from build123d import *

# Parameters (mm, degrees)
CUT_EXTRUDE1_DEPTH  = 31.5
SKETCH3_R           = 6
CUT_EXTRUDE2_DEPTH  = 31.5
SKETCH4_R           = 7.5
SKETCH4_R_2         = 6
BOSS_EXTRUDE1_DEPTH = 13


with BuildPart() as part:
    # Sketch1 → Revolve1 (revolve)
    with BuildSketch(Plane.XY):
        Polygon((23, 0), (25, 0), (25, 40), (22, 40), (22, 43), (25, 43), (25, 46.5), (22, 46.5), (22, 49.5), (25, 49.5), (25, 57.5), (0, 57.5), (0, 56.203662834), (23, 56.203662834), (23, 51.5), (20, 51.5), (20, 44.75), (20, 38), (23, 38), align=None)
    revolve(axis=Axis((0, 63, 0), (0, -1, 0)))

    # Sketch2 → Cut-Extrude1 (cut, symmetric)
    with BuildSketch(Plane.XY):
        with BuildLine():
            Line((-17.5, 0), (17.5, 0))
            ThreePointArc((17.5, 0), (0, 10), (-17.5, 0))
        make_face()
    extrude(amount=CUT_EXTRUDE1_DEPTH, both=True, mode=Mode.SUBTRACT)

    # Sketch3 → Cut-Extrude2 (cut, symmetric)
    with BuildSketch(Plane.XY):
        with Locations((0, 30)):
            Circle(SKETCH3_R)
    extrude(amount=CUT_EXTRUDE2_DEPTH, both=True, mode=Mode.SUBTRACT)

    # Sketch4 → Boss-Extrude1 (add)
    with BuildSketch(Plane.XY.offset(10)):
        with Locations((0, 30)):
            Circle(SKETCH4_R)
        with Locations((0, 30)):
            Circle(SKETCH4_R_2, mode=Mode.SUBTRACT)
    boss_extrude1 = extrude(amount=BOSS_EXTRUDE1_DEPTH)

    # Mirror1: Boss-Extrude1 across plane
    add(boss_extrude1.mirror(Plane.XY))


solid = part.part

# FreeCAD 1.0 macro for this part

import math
import FreeCAD as App
import Part
import Sketcher
from FreeCAD import Vector
Q = App.Units.Quantity


def add_polygon(sketch, points):
    """Adds a closed chain of lines whose ends are joined by coincident constraints."""
    first, n = sketch.GeometryCount, len(points)
    for a, b in zip(points, points[1:] + points[:1]):
        sketch.addGeometry(Part.LineSegment(App.Vector(*a, 0), App.Vector(*b, 0)), False)
    for i in range(n):
        sketch.addConstraint(Sketcher.Constraint("Coincident", first + i, 2, first + (i + 1) % n, 1))

doc = App.newDocument("Part")
params = doc.addObject("Spreadsheet::Sheet", "Params")
for row, (alias, value) in enumerate([
    ("sketch1_width", "2 mm"),
    ("sketch1_width2", "3 mm"),
    ("sketch1_width3", "25 mm"),
    ("sketch1_height", "40 mm"),
    ("sketch1_height2", "8 mm"),
    ("revolution_angle", "360 deg"),
    ("sketch2_width", "35 mm"),
    ("pocket1_length", "63 mm"),
    ("sketch3_diameter", "12 mm"),
    ("pocket2_length", "63 mm"),
    ("sketch4_diameter", "15 mm"),
    ("sketch4_diameter2", "12 mm"),
    ("pad1_length", "13 mm"),
], start=1):
    params.set(f"A{row}", alias)
    params.set(f"B{row}", "=" + value)
    params.setAlias(f"B{row}", alias)

body = doc.addObject("PartDesign::Body", "Body")

sketch1 = doc.addObject("Sketcher::SketchObject", "Sketch")
body.addObject(sketch1)
sketch1.AttachmentSupport = (doc.XY_Plane, [""])
sketch1.MapMode = "FlatFace"
add_polygon(sketch1, [(23, 0), (25, 0), (25, 40), (22, 40), (22, 43), (25, 43), (25, 46.5), (22, 46.5), (22, 49.5), (25, 49.5), (25, 57.5), (0, 57.5), (0, 56.2), (23, 56.2), (23, 51.5), (20, 51.5), (20, 38), (23, 38)])
sketch1.addConstraint([
    Sketcher.Constraint("Horizontal", 0),
    Sketcher.Constraint("Vertical", 1),
    Sketcher.Constraint("Horizontal", 2),
    Sketcher.Constraint("Vertical", 3),
    Sketcher.Constraint("Horizontal", 4),
    Sketcher.Constraint("Vertical", 5),
    Sketcher.Constraint("Horizontal", 6),
    Sketcher.Constraint("Vertical", 7),
    Sketcher.Constraint("Horizontal", 8),
    Sketcher.Constraint("Vertical", 9),
    Sketcher.Constraint("Horizontal", 10),
    Sketcher.Constraint("Vertical", 11),
    Sketcher.Constraint("Horizontal", 12),
    Sketcher.Constraint("Vertical", 13),
    Sketcher.Constraint("Horizontal", 14),
    Sketcher.Constraint("Vertical", 15),
    Sketcher.Constraint("Horizontal", 16),
    Sketcher.Constraint("Vertical", 17),
    Sketcher.Constraint("PointOnObject", 0, 2, -1),
    Sketcher.Constraint("PointOnObject", 10, 2, -2),
    Sketcher.Constraint("Vertical", 1, 2, 4, 2),
    Sketcher.Constraint("Vertical", 3, 2, 6, 2),
    Sketcher.Constraint("Vertical", 5, 2, 8, 2),
    Sketcher.Constraint("Vertical", 13, 2, 16, 2),
    Sketcher.Constraint("Equal", 8, 14),
    Sketcher.Constraint("Equal", 16, 3),
    Sketcher.Constraint("Equal", 3, 7),
    Sketcher.Constraint("DistanceX", 0, 1, 0, 2, Q("2 mm")),
    Sketcher.Constraint("DistanceX", 2, 2, 2, 1, Q("3 mm")),
    Sketcher.Constraint("DistanceX", 10, 2, 10, 1, Q("25 mm")),
    Sketcher.Constraint("DistanceY", 1, 1, 1, 2, Q("40 mm")),
    Sketcher.Constraint("DistanceY", 9, 1, 9, 2, Q("8 mm")),
    Sketcher.Constraint("DistanceY", 17, 2, 17, 1, Q("38 mm")),
    Sketcher.Constraint("DistanceY", 5, 1, 5, 2, Q("3.5 mm")),
    Sketcher.Constraint("DistanceY", 15, 2, 15, 1, Q("13.5 mm")),
    Sketcher.Constraint("DistanceY", 11, 2, 11, 1, Q("1.296337 mm")),
])
sketch1.setExpression("Constraints[45]", "Params.sketch1_width")
sketch1.setExpression("Constraints[46]", "Params.sketch1_width2")
sketch1.setExpression("Constraints[47]", "Params.sketch1_width3")
sketch1.setExpression("Constraints[48]", "Params.sketch1_height")
sketch1.setExpression("Constraints[49]", "Params.sketch1_height2")
revolution = doc.addObject("PartDesign::Revolution", "Revolution")
body.addObject(revolution)
revolution.Profile = sketch1
revolution.ReferenceAxis = (sketch1, ["V_Axis"])
revolution.setExpression("Angle", "Params.revolution_angle")

sketch2 = doc.addObject("Sketcher::SketchObject", "Sketch001")
body.addObject(sketch2)
sketch2.AttachmentSupport = (doc.XY_Plane, [""])
sketch2.MapMode = "FlatFace"
sketch2.addGeometry([
    Part.LineSegment(Vector(-18, 0, 0), Vector(18, 0, 0)),
    Part.ArcOfCircle(Part.Circle(Vector(0, -10, 0), Vector(0, 0, 1), 20), math.radians(31), math.radians(149)),
], False)
sketch2.addConstraint([
    Sketcher.Constraint("Coincident", 0, 1, 1, 2),
    Sketcher.Constraint("Coincident", 1, 1, 0, 2),
    Sketcher.Constraint("Horizontal", 0),
    Sketcher.Constraint("Symmetric", 0, 1, 1, 1, -1, 1),
    Sketcher.Constraint("DistanceX", 0, 1, 0, 2, Q("35 mm")),
    Sketcher.Constraint("Radius", 1, Q("20.3125 mm")),
])
sketch2.setExpression("Constraints[4]", "Params.sketch2_width")
pocket1 = doc.addObject("PartDesign::Pocket", "Pocket")
body.addObject(pocket1)
pocket1.Profile = sketch2
pocket1.setExpression("Length", "Params.pocket1_length")
pocket1.Midplane = True

sketch3 = doc.addObject("Sketcher::SketchObject", "Sketch002")
body.addObject(sketch3)
sketch3.AttachmentSupport = (doc.XY_Plane, [""])
sketch3.MapMode = "FlatFace"
sketch3.addGeometry(Part.Circle(Vector(0, 30, 0), Vector(0, 0, 1), 6), False)
sketch3.addConstraint([
    Sketcher.Constraint("PointOnObject", 0, 3, -2),
    Sketcher.Constraint("Diameter", 0, Q("12 mm")),
    Sketcher.Constraint("DistanceY", -1, 1, 0, 3, Q("30 mm")),
])
sketch3.setExpression("Constraints[1]", "Params.sketch3_diameter")
pocket2 = doc.addObject("PartDesign::Pocket", "Pocket001")
body.addObject(pocket2)
pocket2.Profile = sketch3
pocket2.setExpression("Length", "Params.pocket2_length")
pocket2.Midplane = True

sketch4 = doc.addObject("Sketcher::SketchObject", "Sketch003")
body.addObject(sketch4)
sketch4.AttachmentSupport = (doc.XY_Plane, [""])
sketch4.MapMode = "FlatFace"
sketch4.AttachmentOffset = App.Placement(Vector(0, 0, 10), App.Rotation())
sketch4.addGeometry([
    Part.Circle(Vector(0, 30, 0), Vector(0, 0, 1), 8),
    Part.Circle(Vector(0, 30, 0), Vector(0, 0, 1), 6),
], False)
sketch4.addConstraint([
    Sketcher.Constraint("Coincident", 1, 3, 0, 3),
    Sketcher.Constraint("PointOnObject", 0, 3, -2),
    Sketcher.Constraint("Diameter", 0, Q("15 mm")),
    Sketcher.Constraint("Diameter", 1, Q("12 mm")),
    Sketcher.Constraint("DistanceY", -1, 1, 0, 3, Q("30 mm")),
])
sketch4.setExpression("Constraints[2]", "Params.sketch4_diameter")
sketch4.setExpression("Constraints[3]", "Params.sketch4_diameter2")
pad1 = doc.addObject("PartDesign::Pad", "Pad")
body.addObject(pad1)
pad1.Profile = sketch4
pad1.setExpression("Length", "Params.pad1_length")
doc.recompute()

mirrored = doc.addObject("PartDesign::Mirrored", "Mirrored")
body.addObject(mirrored)
mirrored.Originals = [pad1]
mirrored.MirrorPlane = (doc.XY_Plane, [""])
body.Tip = mirrored

doc.recompute()
